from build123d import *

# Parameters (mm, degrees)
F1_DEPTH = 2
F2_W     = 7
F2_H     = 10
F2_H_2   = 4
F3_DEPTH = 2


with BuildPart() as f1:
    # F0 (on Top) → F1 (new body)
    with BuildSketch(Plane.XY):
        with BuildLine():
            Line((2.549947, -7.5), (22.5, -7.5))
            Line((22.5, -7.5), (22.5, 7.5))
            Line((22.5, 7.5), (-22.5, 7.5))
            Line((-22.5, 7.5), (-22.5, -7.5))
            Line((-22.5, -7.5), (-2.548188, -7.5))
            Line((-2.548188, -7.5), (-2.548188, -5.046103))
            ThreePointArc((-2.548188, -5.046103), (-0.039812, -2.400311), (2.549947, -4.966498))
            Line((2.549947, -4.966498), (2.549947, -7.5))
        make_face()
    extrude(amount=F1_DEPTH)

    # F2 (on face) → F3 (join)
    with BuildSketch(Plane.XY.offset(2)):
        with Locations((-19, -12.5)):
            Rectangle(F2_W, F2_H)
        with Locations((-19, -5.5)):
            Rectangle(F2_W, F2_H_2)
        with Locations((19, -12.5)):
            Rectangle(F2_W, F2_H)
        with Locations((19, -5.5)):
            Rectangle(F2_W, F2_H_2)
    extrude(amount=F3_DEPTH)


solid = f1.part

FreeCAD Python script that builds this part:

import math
import FreeCAD as App
import Part
import Sketcher
Q = App.Units.Quantity


def add_polygon(sketch, points):
    """Adds a closed chain of lines whose ends are joined by coincident constraints."""
    first, n = sketch.GeometryCount, len(points)
    for a, b in zip(points, points[1:] + points[:1]):
        sketch.addGeometry(Part.LineSegment(App.Vector(*a, 0), App.Vector(*b, 0)), False)
    for i in range(n):
        sketch.addConstraint(Sketcher.Constraint("Coincident", first + i, 2, first + (i + 1) % n, 1))

doc = App.newDocument("Part")
body = doc.addObject("PartDesign::Body", "Body")

sketch1 = body.newObject("Sketcher::SketchObject", "Sketch")
sketch1.AttachmentSupport = (doc.getObject("XY_Plane"), [""])
sketch1.MapMode = "FlatFace"
sketch1.addGeometry([
    Part.LineSegment(App.Vector(2.549947, -7.5, 0), App.Vector(22.5, -7.5, 0)),
    Part.LineSegment(App.Vector(22.5, -7.5, 0), App.Vector(22.5, 7.5, 0)),
    Part.LineSegment(App.Vector(22.5, 7.5, 0), App.Vector(-22.5, 7.5, 0)),
    Part.LineSegment(App.Vector(-22.5, 7.5, 0), App.Vector(-22.5, -7.5, 0)),
    Part.LineSegment(App.Vector(-22.5, -7.5, 0), App.Vector(-2.548188, -7.5, 0)),
    Part.LineSegment(App.Vector(-2.548188, -7.5, 0), App.Vector(-2.548188, -5.046103, 0)),
    Part.ArcOfCircle(Part.Circle(App.Vector(0, -4.95, 0), App.Vector(0, 0, 1), 2.55), math.radians(-0.370691), math.radians(182.15984)),
    Part.LineSegment(App.Vector(2.549947, -4.966498, 0), App.Vector(2.549947, -7.5, 0)),
], False)
sketch1.addConstraint([
    Sketcher.Constraint("Coincident", 0, 2, 1, 1),
    Sketcher.Constraint("Coincident", 1, 2, 2, 1),
    Sketcher.Constraint("Coincident", 2, 2, 3, 1),
    Sketcher.Constraint("Coincident", 3, 2, 4, 1),
    Sketcher.Constraint("Coincident", 4, 2, 5, 1),
    Sketcher.Constraint("Coincident", 5, 2, 6, 2),
    Sketcher.Constraint("Coincident", 6, 1, 7, 1),
    Sketcher.Constraint("Coincident", 7, 2, 0, 1),
    Sketcher.Constraint("Horizontal", 0),
    Sketcher.Constraint("Vertical", 1),
    Sketcher.Constraint("Horizontal", 2),
    Sketcher.Constraint("Vertical", 3),
    Sketcher.Constraint("Horizontal", 4),
    Sketcher.Constraint("Vertical", 5),
    Sketcher.Constraint("Vertical", 7),
    Sketcher.Constraint("Symmetric", 0, 2, 2, 2, -1, 1),
    Sketcher.Constraint("PointOnObject", 6, 3, -2),
    Sketcher.Constraint("Horizontal", 0, 2, 3, 2),
    Sketcher.Constraint("DistanceX", 2, 2, 2, 1, Q("45 mm")),
    Sketcher.Constraint("DistanceY", 1, 1, 1, 2, Q("15 mm")),
    Sketcher.Constraint("Radius", 6, Q("2.55 mm")),
    Sketcher.Constraint("DistanceY", 6, 3, -1, 1, Q("4.95 mm")),
    Sketcher.Constraint("DistanceY", 6, 1, -1, 1, Q("4.966498 mm")),
    Sketcher.Constraint("DistanceX", 4, 1, 4, 2, Q("19.951812 mm")),
])
pad1 = body.newObject("PartDesign::Pad", "Pad")
pad1.Profile = sketch1
pad1.Length = 2

sketch2 = body.newObject("Sketcher::SketchObject", "Sketch001")
sketch2.AttachmentSupport = (doc.getObject("XY_Plane"), [""])
sketch2.MapMode = "FlatFace"
sketch2.AttachmentOffset = App.Placement(App.Vector(0, 0, 2), App.Rotation())
add_polygon(sketch2, [(-22.5, -17.5), (-15.5, -17.5), (-15.5, -3.5), (-22.5, -3.5)])
add_polygon(sketch2, [(15.5, -17.5), (22.5, -17.5), (22.5, -3.5), (15.5, -3.5)])
sketch2.addConstraint([
    Sketcher.Constraint("Horizontal", 0),
    Sketcher.Constraint("Vertical", 1),
    Sketcher.Constraint("Horizontal", 2),
    Sketcher.Constraint("Vertical", 3),
    Sketcher.Constraint("Horizontal", 4),
    Sketcher.Constraint("Vertical", 5),
    Sketcher.Constraint("Horizontal", 6),
    Sketcher.Constraint("Vertical", 7),
    Sketcher.Constraint("Symmetric", 3, 2, 4, 2, -2),
    Sketcher.Constraint("Symmetric", 1, 2, 6, 2, -2),
    Sketcher.Constraint("DistanceX", 0, 1, 0, 2, Q("7 mm")),
    Sketcher.Constraint("DistanceY", 1, 1, 1, 2, Q("14 mm")),
    Sketcher.Constraint("DistanceX", 0, 2, 4, 2, Q("38 mm")),
    Sketcher.Constraint("DistanceY", 0, 2, -1, 1, Q("17.5 mm")),
])
pad2 = body.newObject("PartDesign::Pad", "Pad001")
pad2.Profile = sketch2
pad2.Length = 2

doc.recompute()
